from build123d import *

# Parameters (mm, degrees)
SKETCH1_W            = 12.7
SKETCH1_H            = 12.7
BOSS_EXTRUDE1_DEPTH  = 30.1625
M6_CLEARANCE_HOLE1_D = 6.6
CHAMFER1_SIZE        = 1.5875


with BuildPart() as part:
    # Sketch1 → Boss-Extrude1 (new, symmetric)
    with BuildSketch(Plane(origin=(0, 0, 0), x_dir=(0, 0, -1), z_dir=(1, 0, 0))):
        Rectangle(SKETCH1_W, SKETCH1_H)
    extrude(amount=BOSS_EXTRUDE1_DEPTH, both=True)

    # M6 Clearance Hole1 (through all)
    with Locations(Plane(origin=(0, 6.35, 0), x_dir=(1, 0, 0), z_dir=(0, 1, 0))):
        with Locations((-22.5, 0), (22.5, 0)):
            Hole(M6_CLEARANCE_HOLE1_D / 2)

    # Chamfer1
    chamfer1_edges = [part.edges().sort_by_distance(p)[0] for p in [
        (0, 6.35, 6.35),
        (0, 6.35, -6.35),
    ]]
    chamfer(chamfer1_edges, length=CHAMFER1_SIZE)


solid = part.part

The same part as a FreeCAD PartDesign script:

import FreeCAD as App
import Part
import Sketcher
from FreeCAD import Vector
Q = App.Units.Quantity


def edges_at(feature, points):
    """Names of the edges that pass closest to the given points."""
    edges = feature.Shape.Edges
    near = lambda p: min(range(len(edges)), key=lambda i: edges[i].distToShape(Part.Vertex(*p))[0])
    return sorted({f"Edge{near(p) + 1}" for p in points})


def add_polygon(sketch, points):
    """Adds a closed chain of lines whose ends are joined by coincident constraints."""
    first, n = sketch.GeometryCount, len(points)
    for a, b in zip(points, points[1:] + points[:1]):
        sketch.addGeometry(Part.LineSegment(App.Vector(*a, 0), App.Vector(*b, 0)), False)
    for i in range(n):
        sketch.addConstraint(Sketcher.Constraint("Coincident", first + i, 2, first + (i + 1) % n, 1))

doc = App.newDocument("Part")
body = doc.addObject("PartDesign::Body", "Body")

# Sketch on YZ plane
sketch1 = body.newObject("Sketcher::SketchObject", "Sketch")
sketch1.AttachmentSupport = (doc.getObject("YZ_Plane"), [""])
sketch1.MapMode = "FlatFace"
add_polygon(sketch1, [(6, 6), (-6, 6), (-6, -6), (6, -6)])  # lines 0-3
sketch1.addConstraint(Sketcher.Constraint("Horizontal", 0))
sketch1.addConstraint(Sketcher.Constraint("Vertical", 1))
sketch1.addConstraint(Sketcher.Constraint("Horizontal", 2))
sketch1.addConstraint(Sketcher.Constraint("Vertical", 3))
sketch1.addConstraint(Sketcher.Constraint("Symmetric", 0, 2, 2, 2, -1, 1))
sketch1.addConstraint(Sketcher.Constraint("Equal", 2, 1))
sketch1.addConstraint(Sketcher.Constraint("DistanceX", 0, 2, 0, 1, Q("0.5 in")))
pad1 = body.newObject("PartDesign::Pad", "Pad")
pad1.Profile = sketch1
pad1.Length = Q("2.375 in")
pad1.Midplane = True

# Sketch on XZ plane
sketch2 = body.newObject("Sketcher::SketchObject", "Sketch001")
sketch2.AttachmentSupport = (doc.getObject("XZ_Plane"), [""])
sketch2.MapMode = "FlatFace"
sketch2.AttachmentOffset = App.Placement(Vector(0, 0, -0.25 * 25.4), App.Rotation())
sketch2.addGeometry(Part.Circle(Vector(-22.5, 0, 0), Vector(0, 0, 1), 3.3), False)
sketch2.addGeometry(Part.Circle(Vector(22.5, 0, 0), Vector(0, 0, 1), 3.3), False)
sketch2.addConstraint(Sketcher.Constraint("Equal", 0, 1))
sketch2.addConstraint(Sketcher.Constraint("Symmetric", 0, 3, 1, 3, -1, 1))
sketch2.addConstraint(Sketcher.Constraint("PointOnObject", 0, 3, -1))
sketch2.addConstraint(Sketcher.Constraint("Diameter", 0, Q("6.6 mm")))
sketch2.addConstraint(Sketcher.Constraint("DistanceX", 0, 3, -1, 1, Q("22.5 mm")))
doc.recompute()
hole = body.newObject("PartDesign::Hole", "Hole")
hole.Profile = sketch2
hole.ThreadType = "None"
hole.Diameter = 6.6
hole.DepthType = "ThroughAll"
hole.Reversed = True
doc.recompute()

chamfer = body.newObject("PartDesign::Chamfer", "Chamfer")
chamfer.Base = (hole, edges_at(hole, [(0, 6.35, 6.35), (0, 6.35, -6.35)]))
chamfer.Size = Q("0.0625 in")

doc.recompute()
